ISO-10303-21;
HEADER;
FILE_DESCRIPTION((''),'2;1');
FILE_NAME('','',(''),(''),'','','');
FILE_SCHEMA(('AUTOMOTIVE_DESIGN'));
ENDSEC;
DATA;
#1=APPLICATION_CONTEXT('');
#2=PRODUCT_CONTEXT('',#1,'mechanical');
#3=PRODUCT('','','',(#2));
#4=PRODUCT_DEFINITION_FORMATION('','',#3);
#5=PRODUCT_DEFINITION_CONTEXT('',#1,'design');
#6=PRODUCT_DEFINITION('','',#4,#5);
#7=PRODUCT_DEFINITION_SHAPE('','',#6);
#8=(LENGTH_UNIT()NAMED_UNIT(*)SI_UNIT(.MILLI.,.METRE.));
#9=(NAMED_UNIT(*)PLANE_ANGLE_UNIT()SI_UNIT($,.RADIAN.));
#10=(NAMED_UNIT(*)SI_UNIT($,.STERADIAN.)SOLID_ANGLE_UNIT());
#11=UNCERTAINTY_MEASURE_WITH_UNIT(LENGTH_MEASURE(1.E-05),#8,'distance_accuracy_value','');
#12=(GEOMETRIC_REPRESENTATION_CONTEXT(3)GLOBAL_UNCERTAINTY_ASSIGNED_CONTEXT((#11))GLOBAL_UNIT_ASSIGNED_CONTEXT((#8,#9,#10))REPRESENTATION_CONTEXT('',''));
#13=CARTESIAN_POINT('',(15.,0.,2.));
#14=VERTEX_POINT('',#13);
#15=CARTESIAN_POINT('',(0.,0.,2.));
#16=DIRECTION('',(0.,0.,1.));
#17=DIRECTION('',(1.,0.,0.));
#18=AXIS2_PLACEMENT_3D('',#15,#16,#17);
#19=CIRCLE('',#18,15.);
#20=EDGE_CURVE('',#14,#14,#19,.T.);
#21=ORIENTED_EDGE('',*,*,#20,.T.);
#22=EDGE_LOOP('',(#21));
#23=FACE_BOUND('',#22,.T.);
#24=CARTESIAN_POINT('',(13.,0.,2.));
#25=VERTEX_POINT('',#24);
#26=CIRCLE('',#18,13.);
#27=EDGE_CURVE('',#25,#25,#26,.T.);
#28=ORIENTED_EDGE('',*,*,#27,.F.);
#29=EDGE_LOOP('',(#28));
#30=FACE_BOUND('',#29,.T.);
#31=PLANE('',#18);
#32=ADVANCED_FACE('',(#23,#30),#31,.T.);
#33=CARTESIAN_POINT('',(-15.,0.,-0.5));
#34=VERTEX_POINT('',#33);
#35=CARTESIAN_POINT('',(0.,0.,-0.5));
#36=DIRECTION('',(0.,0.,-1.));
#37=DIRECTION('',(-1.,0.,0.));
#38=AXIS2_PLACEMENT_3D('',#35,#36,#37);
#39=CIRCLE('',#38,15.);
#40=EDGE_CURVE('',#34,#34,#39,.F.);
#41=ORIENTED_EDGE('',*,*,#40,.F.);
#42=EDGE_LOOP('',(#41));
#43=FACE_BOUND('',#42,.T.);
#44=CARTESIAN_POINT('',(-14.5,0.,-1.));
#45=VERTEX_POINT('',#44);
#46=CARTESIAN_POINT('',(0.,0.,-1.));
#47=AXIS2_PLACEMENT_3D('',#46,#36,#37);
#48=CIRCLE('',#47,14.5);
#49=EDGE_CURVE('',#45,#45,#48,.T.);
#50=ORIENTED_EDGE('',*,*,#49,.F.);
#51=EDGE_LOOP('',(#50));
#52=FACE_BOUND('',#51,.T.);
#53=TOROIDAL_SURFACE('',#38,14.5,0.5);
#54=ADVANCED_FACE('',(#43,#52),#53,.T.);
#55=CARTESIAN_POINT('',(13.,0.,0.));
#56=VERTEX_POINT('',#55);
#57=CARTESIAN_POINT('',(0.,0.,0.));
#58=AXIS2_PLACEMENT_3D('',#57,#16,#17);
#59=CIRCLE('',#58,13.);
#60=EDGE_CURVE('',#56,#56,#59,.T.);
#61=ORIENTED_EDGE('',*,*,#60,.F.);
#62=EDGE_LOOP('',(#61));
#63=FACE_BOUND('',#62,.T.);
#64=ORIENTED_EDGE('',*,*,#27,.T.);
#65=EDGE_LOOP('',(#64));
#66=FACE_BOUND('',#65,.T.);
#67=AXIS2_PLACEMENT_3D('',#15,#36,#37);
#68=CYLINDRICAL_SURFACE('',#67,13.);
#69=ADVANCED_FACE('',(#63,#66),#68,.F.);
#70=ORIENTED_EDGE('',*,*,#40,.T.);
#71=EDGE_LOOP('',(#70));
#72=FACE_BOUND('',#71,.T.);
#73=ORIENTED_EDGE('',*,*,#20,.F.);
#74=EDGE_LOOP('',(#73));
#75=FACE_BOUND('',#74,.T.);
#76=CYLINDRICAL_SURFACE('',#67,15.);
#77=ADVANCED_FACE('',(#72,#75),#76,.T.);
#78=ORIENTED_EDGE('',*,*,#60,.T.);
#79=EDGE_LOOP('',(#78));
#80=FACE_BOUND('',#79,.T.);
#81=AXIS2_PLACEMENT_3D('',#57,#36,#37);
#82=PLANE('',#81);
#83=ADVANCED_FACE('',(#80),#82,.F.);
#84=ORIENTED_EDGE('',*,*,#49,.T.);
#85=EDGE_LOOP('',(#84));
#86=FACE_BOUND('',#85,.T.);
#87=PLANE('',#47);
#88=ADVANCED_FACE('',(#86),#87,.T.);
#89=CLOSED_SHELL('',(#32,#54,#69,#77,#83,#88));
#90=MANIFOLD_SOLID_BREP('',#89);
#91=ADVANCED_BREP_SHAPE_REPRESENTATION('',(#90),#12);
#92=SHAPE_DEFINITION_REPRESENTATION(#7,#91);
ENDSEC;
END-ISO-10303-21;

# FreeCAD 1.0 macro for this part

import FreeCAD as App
import Part
import Sketcher

V = App.Vector
Q = App.Units.Quantity


def edges_at(feature, points):
    """Names of the edges that pass closest to the given points."""
    edges = feature.Shape.Edges
    near = lambda p: min(range(len(edges)), key=lambda i: edges[i].distToShape(Part.Vertex(*p))[0])
    return sorted({f"Edge{near(p) + 1}" for p in points})

doc = App.newDocument("Part")
params = doc.addObject("Spreadsheet::Sheet", "Params")
for row, (alias, value) in enumerate([
    ("sketch1_diameter", "30 mm"),
    ("sketch1_diameter2", "26 mm"),
    ("pad1_length", "2 mm"),
    ("sketch2_diameter", "30 mm"),
    ("pad2_length", "1 mm"),
    ("fillet_radius", "0.5 mm"),
], start=1):
    params.set(f"A{row}", alias)
    params.set(f"B{row}", "=" + value)
    params.setAlias(f"B{row}", alias)

body = doc.addObject("PartDesign::Body", "Body")

sketch1 = body.newObject("Sketcher::SketchObject", "Sketch")
sketch1.AttachmentSupport = (doc.getObject("XY_Plane"), [""])
sketch1.MapMode = "FlatFace"
sketch1.addGeometry([
    Part.Circle(V(0, 0, 0), V(0, 0, 1), 15),
    Part.Circle(V(0, 0, 0), V(0, 0, 1), 13),
], False)
sketch1.addConstraint([
    Sketcher.Constraint("Coincident", 0, 3, -1, 1),
    Sketcher.Constraint("Coincident", 1, 3, -1, 1),
    Sketcher.Constraint("Diameter", 0, Q("30 mm")),
    Sketcher.Constraint("Diameter", 1, Q("26 mm")),
])
sketch1.setExpression("Constraints[2]", "Params.sketch1_diameter")
sketch1.setExpression("Constraints[3]", "Params.sketch1_diameter2")
pad1 = body.newObject("PartDesign::Pad", "Pad")
pad1.Profile = sketch1
pad1.setExpression("Length", "Params.pad1_length")

sketch2 = body.newObject("Sketcher::SketchObject", "Sketch001")
sketch2.AttachmentSupport = (doc.getObject("XY_Plane"), [""])
sketch2.MapMode = "FlatFace"
sketch2.AttachmentOffset = App.Placement(V(0, 0, -1), App.Rotation())
sketch2.addGeometry(Part.Circle(V(0, 0, 0), V(0, 0, 1), 15), False)
sketch2.addConstraint([
    Sketcher.Constraint("Coincident", 0, 3, -1, 1),
    Sketcher.Constraint("Diameter", 0, Q("30 mm")),
])
sketch2.setExpression("Constraints[1]", "Params.sketch2_diameter")
pad2 = body.newObject("PartDesign::Pad", "Pad001")
pad2.Profile = sketch2
pad2.setExpression("Length", "Params.pad2_length")
doc.recompute()

fillet = body.newObject("PartDesign::Fillet", "Fillet")
fillet.Base = (pad2, edges_at(pad2, [(15, 0, -1)]))
fillet.setExpression("Radius", "Params.fillet_radius")

doc.recompute()
